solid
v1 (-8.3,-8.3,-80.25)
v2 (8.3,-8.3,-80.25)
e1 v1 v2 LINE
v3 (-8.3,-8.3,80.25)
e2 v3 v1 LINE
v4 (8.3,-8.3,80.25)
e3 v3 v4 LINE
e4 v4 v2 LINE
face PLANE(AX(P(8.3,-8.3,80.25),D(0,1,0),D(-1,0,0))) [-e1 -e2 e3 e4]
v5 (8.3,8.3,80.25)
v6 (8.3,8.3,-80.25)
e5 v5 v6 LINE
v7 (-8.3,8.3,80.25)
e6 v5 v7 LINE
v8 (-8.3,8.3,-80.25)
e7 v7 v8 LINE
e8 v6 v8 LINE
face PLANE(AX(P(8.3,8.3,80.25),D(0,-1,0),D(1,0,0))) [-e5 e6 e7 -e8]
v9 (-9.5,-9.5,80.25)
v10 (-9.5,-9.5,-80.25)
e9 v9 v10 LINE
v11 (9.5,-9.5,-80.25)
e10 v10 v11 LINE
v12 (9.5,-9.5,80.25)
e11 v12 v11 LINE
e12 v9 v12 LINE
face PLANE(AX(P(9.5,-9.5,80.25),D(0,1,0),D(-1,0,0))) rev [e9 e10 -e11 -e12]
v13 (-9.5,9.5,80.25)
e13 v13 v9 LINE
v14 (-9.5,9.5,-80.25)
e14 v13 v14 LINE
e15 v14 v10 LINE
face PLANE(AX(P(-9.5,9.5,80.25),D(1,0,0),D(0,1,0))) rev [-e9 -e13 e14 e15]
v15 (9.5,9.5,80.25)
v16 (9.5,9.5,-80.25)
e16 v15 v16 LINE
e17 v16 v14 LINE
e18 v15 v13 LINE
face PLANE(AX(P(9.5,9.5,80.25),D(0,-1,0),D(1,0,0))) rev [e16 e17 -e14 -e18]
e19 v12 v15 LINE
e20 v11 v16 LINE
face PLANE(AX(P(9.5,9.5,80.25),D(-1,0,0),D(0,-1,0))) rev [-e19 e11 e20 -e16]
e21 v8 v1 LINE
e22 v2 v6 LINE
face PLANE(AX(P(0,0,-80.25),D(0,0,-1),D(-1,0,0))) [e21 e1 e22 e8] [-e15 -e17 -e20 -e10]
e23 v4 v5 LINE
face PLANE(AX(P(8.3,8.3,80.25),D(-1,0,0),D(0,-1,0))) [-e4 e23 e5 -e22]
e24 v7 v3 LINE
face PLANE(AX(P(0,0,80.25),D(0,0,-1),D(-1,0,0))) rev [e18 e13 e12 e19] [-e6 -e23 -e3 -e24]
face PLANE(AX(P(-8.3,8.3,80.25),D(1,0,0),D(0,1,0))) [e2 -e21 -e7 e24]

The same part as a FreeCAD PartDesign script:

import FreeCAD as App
import Part
import Sketcher
Q = App.Units.Quantity


def add_polygon(sketch, points):
    """Adds a closed chain of lines whose ends are joined by coincident constraints."""
    first, n = sketch.GeometryCount, len(points)
    for a, b in zip(points, points[1:] + points[:1]):
        sketch.addGeometry(Part.LineSegment(App.Vector(*a, 0), App.Vector(*b, 0)), False)
    for i in range(n):
        sketch.addConstraint(Sketcher.Constraint("Coincident", first + i, 2, first + (i + 1) % n, 1))

doc = App.newDocument("Part")
body = doc.addObject("PartDesign::Body", "Body")

sketch1 = body.newObject("Sketcher::SketchObject", "Sketch")
sketch1.AttachmentSupport = (doc.getObject("XY_Plane"), [""])
sketch1.MapMode = "FlatFace"
add_polygon(sketch1, [(-9.5, 9.5), (-9.5, -9.5), (9.5, -9.5), (9.5, 9.5)])
add_polygon(sketch1, [(8.3, -8.3), (-8.3, -8.3), (-8.3, 8.3), (8.3, 8.3)])
sketch1.addConstraint([
    Sketcher.Constraint("Vertical", 0),
    Sketcher.Constraint("Horizontal", 1),
    Sketcher.Constraint("Vertical", 2),
    Sketcher.Constraint("Horizontal", 3),
    Sketcher.Constraint("Horizontal", 4),
    Sketcher.Constraint("Vertical", 5),
    Sketcher.Constraint("Horizontal", 6),
    Sketcher.Constraint("Vertical", 7),
    Sketcher.Constraint("Symmetric", 0, 2, 2, 2, -1, 1),
    Sketcher.Constraint("Symmetric", 4, 2, 6, 2, -1, 1),
    Sketcher.Constraint("Equal", 3, 0),
    Sketcher.Constraint("Equal", 6, 5),
    Sketcher.Constraint("DistanceX", 1, 1, 1, 2, Q("19 mm")),
    Sketcher.Constraint("DistanceX", 4, 2, 4, 1, Q("16.6 mm")),
])
pad1 = body.newObject("PartDesign::Pad", "Pad")
pad1.Profile = sketch1
pad1.Length = 160.5
pad1.Midplane = True

doc.recompute()
